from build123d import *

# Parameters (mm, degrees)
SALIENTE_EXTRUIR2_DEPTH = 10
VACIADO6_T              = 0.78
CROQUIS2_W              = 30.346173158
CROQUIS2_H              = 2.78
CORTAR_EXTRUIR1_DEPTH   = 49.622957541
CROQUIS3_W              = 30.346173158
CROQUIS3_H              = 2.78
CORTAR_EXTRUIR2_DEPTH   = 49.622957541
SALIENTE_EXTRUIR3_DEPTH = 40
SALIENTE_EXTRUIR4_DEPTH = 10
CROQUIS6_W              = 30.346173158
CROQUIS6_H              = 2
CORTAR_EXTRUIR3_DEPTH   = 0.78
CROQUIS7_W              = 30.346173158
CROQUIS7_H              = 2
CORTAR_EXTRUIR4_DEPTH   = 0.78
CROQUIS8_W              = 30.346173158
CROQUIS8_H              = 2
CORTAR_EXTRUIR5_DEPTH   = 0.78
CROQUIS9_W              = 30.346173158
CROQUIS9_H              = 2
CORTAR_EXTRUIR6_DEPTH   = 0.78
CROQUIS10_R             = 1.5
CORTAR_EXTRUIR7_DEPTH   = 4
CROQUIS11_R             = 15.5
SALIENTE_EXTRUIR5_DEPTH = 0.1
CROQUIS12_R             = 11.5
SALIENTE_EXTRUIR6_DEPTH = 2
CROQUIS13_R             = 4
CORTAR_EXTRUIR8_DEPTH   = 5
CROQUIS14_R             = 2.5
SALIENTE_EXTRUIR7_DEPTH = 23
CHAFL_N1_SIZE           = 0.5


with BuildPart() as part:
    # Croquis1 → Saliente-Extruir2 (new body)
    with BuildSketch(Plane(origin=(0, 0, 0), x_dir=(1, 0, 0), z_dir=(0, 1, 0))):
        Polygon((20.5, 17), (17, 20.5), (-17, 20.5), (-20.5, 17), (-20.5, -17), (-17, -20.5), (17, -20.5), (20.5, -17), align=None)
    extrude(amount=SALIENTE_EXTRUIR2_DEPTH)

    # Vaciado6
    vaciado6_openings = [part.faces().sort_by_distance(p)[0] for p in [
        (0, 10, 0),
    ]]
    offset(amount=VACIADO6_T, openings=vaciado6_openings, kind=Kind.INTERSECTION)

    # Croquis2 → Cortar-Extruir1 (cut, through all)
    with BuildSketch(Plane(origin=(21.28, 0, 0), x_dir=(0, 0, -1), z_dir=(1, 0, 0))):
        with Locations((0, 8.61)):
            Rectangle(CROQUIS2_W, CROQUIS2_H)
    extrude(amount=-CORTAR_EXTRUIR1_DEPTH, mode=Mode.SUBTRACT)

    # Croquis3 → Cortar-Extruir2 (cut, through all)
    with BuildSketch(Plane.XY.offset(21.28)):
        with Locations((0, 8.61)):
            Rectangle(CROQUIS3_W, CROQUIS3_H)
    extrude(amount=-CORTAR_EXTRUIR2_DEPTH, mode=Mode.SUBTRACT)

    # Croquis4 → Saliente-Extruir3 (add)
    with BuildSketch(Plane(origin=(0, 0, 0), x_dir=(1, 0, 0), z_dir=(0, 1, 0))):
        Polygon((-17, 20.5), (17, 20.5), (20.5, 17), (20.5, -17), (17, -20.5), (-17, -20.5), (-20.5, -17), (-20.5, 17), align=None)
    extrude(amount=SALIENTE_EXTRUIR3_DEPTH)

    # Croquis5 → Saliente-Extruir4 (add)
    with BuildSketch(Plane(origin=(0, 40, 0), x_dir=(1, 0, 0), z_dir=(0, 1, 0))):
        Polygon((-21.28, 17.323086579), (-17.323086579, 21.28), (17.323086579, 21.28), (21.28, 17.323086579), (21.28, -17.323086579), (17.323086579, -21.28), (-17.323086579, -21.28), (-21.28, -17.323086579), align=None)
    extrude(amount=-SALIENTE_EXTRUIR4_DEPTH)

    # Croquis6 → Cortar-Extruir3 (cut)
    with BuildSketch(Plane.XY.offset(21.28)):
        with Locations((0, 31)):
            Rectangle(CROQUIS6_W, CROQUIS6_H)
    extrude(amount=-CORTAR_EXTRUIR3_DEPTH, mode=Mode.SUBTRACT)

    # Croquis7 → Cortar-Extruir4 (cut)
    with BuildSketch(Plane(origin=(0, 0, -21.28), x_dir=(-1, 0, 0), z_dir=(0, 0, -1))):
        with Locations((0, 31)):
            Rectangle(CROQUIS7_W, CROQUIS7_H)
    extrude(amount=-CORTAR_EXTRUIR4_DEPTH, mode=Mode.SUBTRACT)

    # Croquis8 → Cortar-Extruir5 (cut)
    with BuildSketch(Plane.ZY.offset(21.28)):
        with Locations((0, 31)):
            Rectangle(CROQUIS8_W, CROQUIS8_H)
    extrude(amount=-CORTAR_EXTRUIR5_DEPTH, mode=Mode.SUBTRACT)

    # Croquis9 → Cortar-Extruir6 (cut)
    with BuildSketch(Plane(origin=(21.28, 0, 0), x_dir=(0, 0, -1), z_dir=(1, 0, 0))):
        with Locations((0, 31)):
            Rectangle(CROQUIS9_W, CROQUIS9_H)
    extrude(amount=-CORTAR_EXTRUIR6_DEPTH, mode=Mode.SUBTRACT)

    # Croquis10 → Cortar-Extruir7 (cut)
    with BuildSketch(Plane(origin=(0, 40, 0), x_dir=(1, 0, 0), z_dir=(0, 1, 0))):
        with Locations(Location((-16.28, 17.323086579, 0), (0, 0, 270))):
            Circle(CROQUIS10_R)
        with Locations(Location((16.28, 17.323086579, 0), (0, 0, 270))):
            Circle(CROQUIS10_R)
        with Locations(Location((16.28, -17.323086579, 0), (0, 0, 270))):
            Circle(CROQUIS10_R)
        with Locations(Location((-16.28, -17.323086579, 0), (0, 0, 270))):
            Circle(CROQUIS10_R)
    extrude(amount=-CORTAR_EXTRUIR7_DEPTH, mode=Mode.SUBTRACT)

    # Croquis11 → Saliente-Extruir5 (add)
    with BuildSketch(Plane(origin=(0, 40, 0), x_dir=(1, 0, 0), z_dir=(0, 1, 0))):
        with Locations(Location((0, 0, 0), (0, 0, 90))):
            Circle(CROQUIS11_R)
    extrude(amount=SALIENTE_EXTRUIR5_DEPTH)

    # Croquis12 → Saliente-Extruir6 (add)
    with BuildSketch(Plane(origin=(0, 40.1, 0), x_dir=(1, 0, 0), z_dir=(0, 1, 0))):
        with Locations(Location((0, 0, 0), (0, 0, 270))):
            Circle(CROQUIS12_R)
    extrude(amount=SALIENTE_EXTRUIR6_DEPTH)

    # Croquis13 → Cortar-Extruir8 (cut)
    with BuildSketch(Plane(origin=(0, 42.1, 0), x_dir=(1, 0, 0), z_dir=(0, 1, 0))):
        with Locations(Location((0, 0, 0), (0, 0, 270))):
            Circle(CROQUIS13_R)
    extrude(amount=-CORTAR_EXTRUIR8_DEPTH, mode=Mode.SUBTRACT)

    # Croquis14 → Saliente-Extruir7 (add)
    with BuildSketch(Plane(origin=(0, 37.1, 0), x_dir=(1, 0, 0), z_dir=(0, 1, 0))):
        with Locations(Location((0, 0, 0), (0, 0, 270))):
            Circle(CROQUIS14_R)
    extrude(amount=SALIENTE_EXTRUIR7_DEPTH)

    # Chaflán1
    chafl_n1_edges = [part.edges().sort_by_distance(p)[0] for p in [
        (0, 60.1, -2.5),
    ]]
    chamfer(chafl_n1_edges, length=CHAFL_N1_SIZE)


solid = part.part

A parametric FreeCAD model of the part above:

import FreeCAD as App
import Part
import Sketcher


def edges_at(feature, points):
    """Names of the edges that pass closest to the given points."""
    edges = feature.Shape.Edges
    near = lambda p: min(range(len(edges)), key=lambda i: edges[i].distToShape(Part.Vertex(*p))[0])
    return sorted({f"Edge{near(p) + 1}" for p in points})


def faces_at(feature, points):
    """Names of the faces that lie closest to the given points."""
    faces = feature.Shape.Faces
    near = lambda p: min(range(len(faces)), key=lambda i: faces[i].distToShape(Part.Vertex(*p))[0])
    return sorted({f"Face{near(p) + 1}" for p in points})

doc = App.newDocument("Part")
body = doc.addObject("PartDesign::Body", "Body")

# Sketch on XZ plane
sketch1 = body.newObject("Sketcher::SketchObject", "Sketch")
sketch1.AttachmentSupport = (doc.getObject("XZ_Plane"), [""])
sketch1.MapMode = "FlatFace"
sketch1.addGeometry([
    Part.LineSegment(App.Vector(20.5, -17, 0), App.Vector(17, -20.5, 0)),  # 0
    Part.LineSegment(App.Vector(17, -20.5, 0), App.Vector(-17, -20.5, 0)),  # 1
    Part.LineSegment(App.Vector(-17, -20.5, 0), App.Vector(-20.5, -17, 0)),  # 2
    Part.LineSegment(App.Vector(-20.5, -17, 0), App.Vector(-20.5, 17, 0)),  # 3
    Part.LineSegment(App.Vector(-20.5, 17, 0), App.Vector(-17, 20.5, 0)),  # 4
    Part.LineSegment(App.Vector(-17, 20.5, 0), App.Vector(17, 20.5, 0)),  # 5
    Part.LineSegment(App.Vector(17, 20.5, 0), App.Vector(20.5, 17, 0)),  # 6
    Part.LineSegment(App.Vector(20.5, 17, 0), App.Vector(20.5, -17, 0)),  # 7
], False)
sketch1.addConstraint([
    Sketcher.Constraint("Coincident", 0, 2, 1, 1),
    Sketcher.Constraint("Coincident", 1, 2, 2, 1),
    Sketcher.Constraint("Coincident", 2, 2, 3, 1),
    Sketcher.Constraint("Coincident", 3, 2, 4, 1),
    Sketcher.Constraint("Coincident", 4, 2, 5, 1),
    Sketcher.Constraint("Coincident", 5, 2, 6, 1),
    Sketcher.Constraint("Coincident", 6, 2, 7, 1),
    Sketcher.Constraint("Coincident", 7, 2, 0, 1),
    Sketcher.Constraint("Horizontal", 1),
    Sketcher.Constraint("Vertical", 3),
    Sketcher.Constraint("Horizontal", 5),
    Sketcher.Constraint("Vertical", 7),
    Sketcher.Constraint("Symmetric", 0, 2, 4, 2, -1, 1),
    Sketcher.Constraint("Symmetric", 2, 2, 6, 2, -1, 1),
    Sketcher.Constraint("Perpendicular", 0, 2),
    Sketcher.Constraint("Perpendicular", 2, 4),
    Sketcher.Constraint("Perpendicular", 4, 6),
    Sketcher.Constraint("Horizontal", 3, 2, 6, 2),
    Sketcher.Constraint("Vertical", 1, 2, 4, 2),
    Sketcher.Constraint("Equal", 5, 3),
    Sketcher.Constraint("DistanceX", 1, 2, 1, 1, 34.0),
    Sketcher.Constraint("DistanceY", 1, 2, 4, 2, 41.0),
])
pad1 = body.newObject("PartDesign::Pad", "Pad")
pad1.Profile = sketch1
pad1.Length = 10
pad1.Reversed = True
doc.recompute()

thickness = body.newObject("PartDesign::Thickness", "Thickness")
thickness.Base = (pad1, faces_at(pad1, [(0, 10, 0)]))
thickness.Value = 0.78
thickness.Reversed = False
thickness.Join = "Intersection"

# Sketch on YZ plane
sketch2 = body.newObject("Sketcher::SketchObject", "Sketch001")
sketch2.AttachmentSupport = (doc.getObject("YZ_Plane"), [""])
sketch2.MapMode = "FlatFace"
sketch2.AttachmentOffset = App.Placement(App.Vector(0, 0, 21.28), App.Rotation())
sketch2.addGeometry([
    Part.LineSegment(App.Vector(10, 15.2, 0), App.Vector(7.2, 15.2, 0)),
    Part.LineSegment(App.Vector(7.2, 15.2, 0), App.Vector(7.2, -15.2, 0)),
    Part.LineSegment(App.Vector(7.2, -15.2, 0), App.Vector(10, -15.2, 0)),
    Part.LineSegment(App.Vector(10, -15.2, 0), App.Vector(10, 15.2, 0)),
], False)
sketch2.addConstraint([
    Sketcher.Constraint("Coincident", 0, 2, 1, 1),
    Sketcher.Constraint("Coincident", 1, 2, 2, 1),
    Sketcher.Constraint("Coincident", 2, 2, 3, 1),
    Sketcher.Constraint("Coincident", 3, 2, 0, 1),
    Sketcher.Constraint("Horizontal", 0),
    Sketcher.Constraint("Vertical", 1),
    Sketcher.Constraint("Horizontal", 2),
    Sketcher.Constraint("Vertical", 3),
    Sketcher.Constraint("DistanceX", -1, 1, 2, 2, 10.0),
    Sketcher.Constraint("DistanceX", 0, 2, 0, 1, 2.78),
    Sketcher.Constraint("DistanceY", 1, 2, 1, 1, 30.346173),
    Sketcher.Constraint("DistanceY", -1, 1, 0, 2, 15.173087),
])
pocket1 = body.newObject("PartDesign::Pocket", "Pocket")
pocket1.Profile = sketch2
pocket1.Type = "ThroughAll"

# Sketch on XY plane
sketch3 = body.newObject("Sketcher::SketchObject", "Sketch002")
sketch3.AttachmentSupport = (doc.getObject("XY_Plane"), [""])
sketch3.MapMode = "FlatFace"
sketch3.AttachmentOffset = App.Placement(App.Vector(0, 0, 21.28), App.Rotation())
sketch3.addGeometry([
    Part.LineSegment(App.Vector(-15.2, 10, 0), App.Vector(-15.2, 7.2, 0)),
    Part.LineSegment(App.Vector(-15.2, 7.2, 0), App.Vector(15.2, 7.2, 0)),
    Part.LineSegment(App.Vector(15.2, 7.2, 0), App.Vector(15.2, 10, 0)),
    Part.LineSegment(App.Vector(15.2, 10, 0), App.Vector(-15.2, 10, 0)),
], False)
sketch3.addConstraint([
    Sketcher.Constraint("Coincident", 0, 2, 1, 1),
    Sketcher.Constraint("Coincident", 1, 2, 2, 1),
    Sketcher.Constraint("Coincident", 2, 2, 3, 1),
    Sketcher.Constraint("Coincident", 3, 2, 0, 1),
    Sketcher.Constraint("Vertical", 0),
    Sketcher.Constraint("Horizontal", 1),
    Sketcher.Constraint("Vertical", 2),
    Sketcher.Constraint("Horizontal", 3),
    Sketcher.Constraint("DistanceY", -1, 1, 2, 2, 10.0),
    Sketcher.Constraint("DistanceY", 0, 2, 0, 1, 2.78),
    Sketcher.Constraint("DistanceX", 1, 1, 1, 2, 30.346173),
    Sketcher.Constraint("DistanceX", 0, 2, -1, 1, 15.173087),
])
pocket2 = body.newObject("PartDesign::Pocket", "Pocket001")
pocket2.Profile = sketch3
pocket2.Type = "ThroughAll"

# Sketch on XZ plane
sketch4 = body.newObject("Sketcher::SketchObject", "Sketch003")
sketch4.AttachmentSupport = (doc.getObject("XZ_Plane"), [""])
sketch4.MapMode = "FlatFace"
sketch4.addGeometry([
    Part.LineSegment(App.Vector(17, -20.5, 0), App.Vector(-17, -20.5, 0)),  # 0
    Part.LineSegment(App.Vector(-17, -20.5, 0), App.Vector(-20.5, -17, 0)),  # 1
    Part.LineSegment(App.Vector(-20.5, -17, 0), App.Vector(-20.5, 17, 0)),  # 2
    Part.LineSegment(App.Vector(-20.5, 17, 0), App.Vector(-17, 20.5, 0)),  # 3
    Part.LineSegment(App.Vector(-17, 20.5, 0), App.Vector(17, 20.5, 0)),  # 4
    Part.LineSegment(App.Vector(17, 20.5, 0), App.Vector(20.5, 17, 0)),  # 5
    Part.LineSegment(App.Vector(20.5, 17, 0), App.Vector(20.5, -17, 0)),  # 6
    Part.LineSegment(App.Vector(20.5, -17, 0), App.Vector(17, -20.5, 0)),  # 7
], False)
sketch4.addConstraint([
    Sketcher.Constraint("Coincident", 0, 2, 1, 1),
    Sketcher.Constraint("Coincident", 1, 2, 2, 1),
    Sketcher.Constraint("Coincident", 2, 2, 3, 1),
    Sketcher.Constraint("Coincident", 3, 2, 4, 1),
    Sketcher.Constraint("Coincident", 4, 2, 5, 1),
    Sketcher.Constraint("Coincident", 5, 2, 6, 1),
    Sketcher.Constraint("Coincident", 6, 2, 7, 1),
    Sketcher.Constraint("Coincident", 7, 2, 0, 1),
    Sketcher.Constraint("Horizontal", 0),
    Sketcher.Constraint("Vertical", 2),
    Sketcher.Constraint("Horizontal", 4),
    Sketcher.Constraint("Vertical", 6),
    Sketcher.Constraint("Symmetric", 0, 2, 4, 2, -1, 1),
    Sketcher.Constraint("Symmetric", 1, 2, 5, 2, -1, 1),
    Sketcher.Constraint("Perpendicular", 1, 3),
    Sketcher.Constraint("Perpendicular", 5, 7),
    Sketcher.Constraint("Horizontal", 2, 2, 5, 2),
    Sketcher.Constraint("Horizontal", 1, 2, 6, 2),
    Sketcher.Constraint("Vertical", 0, 2, 3, 2),
    Sketcher.Constraint("Equal", 4, 2),
    Sketcher.Constraint("DistanceX", 0, 2, 0, 1, 34.0),
    Sketcher.Constraint("DistanceY", 0, 2, 3, 2, 41.0),
])
pad2 = body.newObject("PartDesign::Pad", "Pad001")
pad2.Profile = sketch4
pad2.Length = 40
pad2.Reversed = True

# Sketch on XZ plane
sketch5 = body.newObject("Sketcher::SketchObject", "Sketch004")
sketch5.AttachmentSupport = (doc.getObject("XZ_Plane"), [""])
sketch5.MapMode = "FlatFace"
sketch5.AttachmentOffset = App.Placement(App.Vector(0, 0, -40), App.Rotation())
sketch5.addGeometry([
    Part.LineSegment(App.Vector(-17, -21, 0), App.Vector(-21, -17, 0)),  # 0
    Part.LineSegment(App.Vector(-21, -17, 0), App.Vector(-21, 17, 0)),  # 1
    Part.LineSegment(App.Vector(-21, 17, 0), App.Vector(-17, 21, 0)),  # 2
    Part.LineSegment(App.Vector(-17, 21, 0), App.Vector(17, 21, 0)),  # 3
    Part.LineSegment(App.Vector(17, 21, 0), App.Vector(21, 17, 0)),  # 4
    Part.LineSegment(App.Vector(21, 17, 0), App.Vector(21, -17, 0)),  # 5
    Part.LineSegment(App.Vector(21, -17, 0), App.Vector(17, -21, 0)),  # 6
    Part.LineSegment(App.Vector(17, -21, 0), App.Vector(-17, -21, 0)),  # 7
], False)
sketch5.addConstraint([
    Sketcher.Constraint("Coincident", 0, 2, 1, 1),
    Sketcher.Constraint("Coincident", 1, 2, 2, 1),
    Sketcher.Constraint("Coincident", 2, 2, 3, 1),
    Sketcher.Constraint("Coincident", 3, 2, 4, 1),
    Sketcher.Constraint("Coincident", 4, 2, 5, 1),
    Sketcher.Constraint("Coincident", 5, 2, 6, 1),
    Sketcher.Constraint("Coincident", 6, 2, 7, 1),
    Sketcher.Constraint("Coincident", 7, 2, 0, 1),
    Sketcher.Constraint("Vertical", 1),
    Sketcher.Constraint("Horizontal", 3),
    Sketcher.Constraint("Vertical", 5),
    Sketcher.Constraint("Horizontal", 7),
    Sketcher.Constraint("Symmetric", 0, 2, 4, 2, -1, 1),
    Sketcher.Constraint("Symmetric", 2, 2, 6, 2, -1, 1),
    Sketcher.Constraint("Perpendicular", 0, 2),
    Sketcher.Constraint("Perpendicular", 2, 4),
    Sketcher.Constraint("Perpendicular", 4, 6),
    Sketcher.Constraint("Horizontal", 1, 2, 4, 2),
    Sketcher.Constraint("Vertical", 3, 2, 6, 2),
    Sketcher.Constraint("Equal", 7, 1),
    Sketcher.Constraint("DistanceX", 0, 2, -1, 1, 21.28),
    Sketcher.Constraint("Distance", 0, 5.595921),
])
pad3 = body.newObject("PartDesign::Pad", "Pad002")
pad3.Profile = sketch5
pad3.Length = 10

# Sketch on XY plane
sketch6 = body.newObject("Sketcher::SketchObject", "Sketch005")
sketch6.AttachmentSupport = (doc.getObject("XY_Plane"), [""])
sketch6.MapMode = "FlatFace"
sketch6.AttachmentOffset = App.Placement(App.Vector(0, 0, 21.28), App.Rotation())
sketch6.addGeometry([
    Part.LineSegment(App.Vector(-15.2, 32, 0), App.Vector(-15.2, 30, 0)),
    Part.LineSegment(App.Vector(-15.2, 30, 0), App.Vector(15.2, 30, 0)),
    Part.LineSegment(App.Vector(15.2, 30, 0), App.Vector(15.2, 32, 0)),
    Part.LineSegment(App.Vector(15.2, 32, 0), App.Vector(-15.2, 32, 0)),
], False)
sketch6.addConstraint([
    Sketcher.Constraint("Coincident", 0, 2, 1, 1),
    Sketcher.Constraint("Coincident", 1, 2, 2, 1),
    Sketcher.Constraint("Coincident", 2, 2, 3, 1),
    Sketcher.Constraint("Coincident", 3, 2, 0, 1),
    Sketcher.Constraint("Vertical", 0),
    Sketcher.Constraint("Horizontal", 1),
    Sketcher.Constraint("Vertical", 2),
    Sketcher.Constraint("Horizontal", 3),
    Sketcher.Constraint("DistanceY", 0, 2, 0, 1, 2.0),
    Sketcher.Constraint("DistanceY", -1, 1, 0, 2, 30.0),
    Sketcher.Constraint("DistanceX", 1, 1, 1, 2, 30.346173),
    Sketcher.Constraint("DistanceX", 0, 2, -1, 1, 15.173087),
])
pocket3 = body.newObject("PartDesign::Pocket", "Pocket002")
pocket3.Profile = sketch6
pocket3.Length = 0.78

# Sketch on XY plane
sketch7 = body.newObject("Sketcher::SketchObject", "Sketch006")
sketch7.AttachmentSupport = (doc.getObject("XY_Plane"), [""])
sketch7.MapMode = "FlatFace"
sketch7.AttachmentOffset = App.Placement(App.Vector(0, 0, -21.28), App.Rotation())
sketch7.addGeometry([
    Part.LineSegment(App.Vector(15.2, 32, 0), App.Vector(15.2, 30, 0)),
    Part.LineSegment(App.Vector(15.2, 30, 0), App.Vector(-15.2, 30, 0)),
    Part.LineSegment(App.Vector(-15.2, 30, 0), App.Vector(-15.2, 32, 0)),
    Part.LineSegment(App.Vector(-15.2, 32, 0), App.Vector(15.2, 32, 0)),
], False)
sketch7.addConstraint([
    Sketcher.Constraint("Coincident", 0, 2, 1, 1),
    Sketcher.Constraint("Coincident", 1, 2, 2, 1),
    Sketcher.Constraint("Coincident", 2, 2, 3, 1),
    Sketcher.Constraint("Coincident", 3, 2, 0, 1),
    Sketcher.Constraint("Vertical", 0),
    Sketcher.Constraint("Horizontal", 1),
    Sketcher.Constraint("Vertical", 2),
    Sketcher.Constraint("Horizontal", 3),
    Sketcher.Constraint("DistanceY", 0, 2, 0, 1, 2.0),
    Sketcher.Constraint("DistanceY", -1, 1, 0, 2, 30.0),
    Sketcher.Constraint("DistanceX", 1, 2, 1, 1, 30.346173),
    Sketcher.Constraint("DistanceX", -1, 1, 0, 2, 15.173087),
])
pocket4 = body.newObject("PartDesign::Pocket", "Pocket003")
pocket4.Profile = sketch7
pocket4.Length = 0.78
pocket4.Reversed = True

# Sketch on YZ plane
sketch8 = body.newObject("Sketcher::SketchObject", "Sketch007")
sketch8.AttachmentSupport = (doc.getObject("YZ_Plane"), [""])
sketch8.MapMode = "FlatFace"
sketch8.AttachmentOffset = App.Placement(App.Vector(0, 0, -21.28), App.Rotation())
sketch8.addGeometry([
    Part.LineSegment(App.Vector(32, -15.2, 0), App.Vector(30, -15.2, 0)),
    Part.LineSegment(App.Vector(30, -15.2, 0), App.Vector(30, 15.2, 0)),
    Part.LineSegment(App.Vector(30, 15.2, 0), App.Vector(32, 15.2, 0)),
    Part.LineSegment(App.Vector(32, 15.2, 0), App.Vector(32, -15.2, 0)),
], False)
sketch8.addConstraint([
    Sketcher.Constraint("Coincident", 0, 2, 1, 1),
    Sketcher.Constraint("Coincident", 1, 2, 2, 1),
    Sketcher.Constraint("Coincident", 2, 2, 3, 1),
    Sketcher.Constraint("Coincident", 3, 2, 0, 1),
    Sketcher.Constraint("Horizontal", 0),
    Sketcher.Constraint("Vertical", 1),
    Sketcher.Constraint("Horizontal", 2),
    Sketcher.Constraint("Vertical", 3),
    Sketcher.Constraint("DistanceX", 0, 2, 0, 1, 2.0),
    Sketcher.Constraint("DistanceX", -1, 1, 0, 2, 30.0),
    Sketcher.Constraint("DistanceY", 1, 1, 1, 2, 30.346173),
    Sketcher.Constraint("DistanceY", 0, 2, -1, 1, 15.173087),
])
pocket5 = body.newObject("PartDesign::Pocket", "Pocket004")
pocket5.Profile = sketch8
pocket5.Length = 0.78
pocket5.Reversed = True

# Sketch on YZ plane
sketch9 = body.newObject("Sketcher::SketchObject", "Sketch008")
sketch9.AttachmentSupport = (doc.getObject("YZ_Plane"), [""])
sketch9.MapMode = "FlatFace"
sketch9.AttachmentOffset = App.Placement(App.Vector(0, 0, 21.28), App.Rotation())
sketch9.addGeometry([
    Part.LineSegment(App.Vector(32, 15.2, 0), App.Vector(30, 15.2, 0)),
    Part.LineSegment(App.Vector(30, 15.2, 0), App.Vector(30, -15.2, 0)),
    Part.LineSegment(App.Vector(30, -15.2, 0), App.Vector(32, -15.2, 0)),
    Part.LineSegment(App.Vector(32, -15.2, 0), App.Vector(32, 15.2, 0)),
], False)
sketch9.addConstraint([
    Sketcher.Constraint("Coincident", 0, 2, 1, 1),
    Sketcher.Constraint("Coincident", 1, 2, 2, 1),
    Sketcher.Constraint("Coincident", 2, 2, 3, 1),
    Sketcher.Constraint("Coincident", 3, 2, 0, 1),
    Sketcher.Constraint("Horizontal", 0),
    Sketcher.Constraint("Vertical", 1),
    Sketcher.Constraint("Horizontal", 2),
    Sketcher.Constraint("Vertical", 3),
    Sketcher.Constraint("DistanceX", 0, 2, 0, 1, 2.0),
    Sketcher.Constraint("DistanceX", -1, 1, 0, 2, 30.0),
    Sketcher.Constraint("DistanceY", 1, 2, 1, 1, 30.346173),
    Sketcher.Constraint("DistanceY", -1, 1, 0, 2, 15.173087),
])
pocket6 = body.newObject("PartDesign::Pocket", "Pocket005")
pocket6.Profile = sketch9
pocket6.Length = 0.78

# Sketch on XZ plane
sketch10 = body.newObject("Sketcher::SketchObject", "Sketch009")
sketch10.AttachmentSupport = (doc.getObject("XZ_Plane"), [""])
sketch10.MapMode = "FlatFace"
sketch10.AttachmentOffset = App.Placement(App.Vector(0, 0, -40), App.Rotation())
sketch10.addGeometry([
    Part.Circle(App.Vector(-16.3, -17.3, 0), App.Vector(0, 0, 1), 1.5),
    Part.Circle(App.Vector(16.3, -17.3, 0), App.Vector(0, 0, 1), 1.5),
    Part.Circle(App.Vector(16.3, 17.3, 0), App.Vector(0, 0, 1), 1.5),
    Part.Circle(App.Vector(-16.3, 17.3, 0), App.Vector(0, 0, 1), 1.5),
], False)
sketch10.addConstraint([
    Sketcher.Constraint("Equal", 0, 1),
    Sketcher.Constraint("Equal", 1, 2),
    Sketcher.Constraint("Equal", 2, 3),
    Sketcher.Constraint("Symmetric", 0, 3, 2, 3, -1, 1),
    Sketcher.Constraint("Symmetric", 1, 3, 3, 3, -1, 1),
    Sketcher.Constraint("Symmetric", 0, 3, 1, 3, -2),
    Sketcher.Constraint("Diameter", 0, 3.0),
    Sketcher.Constraint("DistanceX", 0, 3, -1, 1, 16.28),
    Sketcher.Constraint("DistanceY", 0, 3, -1, 1, 17.323087),
])
pocket7 = body.newObject("PartDesign::Pocket", "Pocket006")
pocket7.Profile = sketch10
pocket7.Length = 4
pocket7.Reversed = True

# Sketch on XZ plane
sketch11 = body.newObject("Sketcher::SketchObject", "Sketch010")
sketch11.AttachmentSupport = (doc.getObject("XZ_Plane"), [""])
sketch11.MapMode = "FlatFace"
sketch11.AttachmentOffset = App.Placement(App.Vector(0, 0, -40), App.Rotation())
sketch11.addGeometry(Part.Circle(App.Vector(0, 0, 0), App.Vector(0, 0, 1), 16), False)
sketch11.addConstraint([
    Sketcher.Constraint("Coincident", 0, 3, -1, 1),
    Sketcher.Constraint("Diameter", 0, 31.0),
])
pad4 = body.newObject("PartDesign::Pad", "Pad003")
pad4.Profile = sketch11
pad4.Length = 0.1
pad4.Reversed = True

# Sketch on XZ plane
sketch12 = body.newObject("Sketcher::SketchObject", "Sketch011")
sketch12.AttachmentSupport = (doc.getObject("XZ_Plane"), [""])
sketch12.MapMode = "FlatFace"
sketch12.AttachmentOffset = App.Placement(App.Vector(0, 0, -40.1), App.Rotation())
sketch12.addGeometry(Part.Circle(App.Vector(0, 0, 0), App.Vector(0, 0, 1), 12), False)
sketch12.addConstraint([
    Sketcher.Constraint("Coincident", 0, 3, -1, 1),
    Sketcher.Constraint("Diameter", 0, 23.0),
])
pad5 = body.newObject("PartDesign::Pad", "Pad004")
pad5.Profile = sketch12
pad5.Length = 2
pad5.Reversed = True

# Sketch on XZ plane
sketch13 = body.newObject("Sketcher::SketchObject", "Sketch012")
sketch13.AttachmentSupport = (doc.getObject("XZ_Plane"), [""])
sketch13.MapMode = "FlatFace"
sketch13.AttachmentOffset = App.Placement(App.Vector(0, 0, -42.1), App.Rotation())
sketch13.addGeometry(Part.Circle(App.Vector(0, 0, 0), App.Vector(0, 0, 1), 4), False)
sketch13.addConstraint([
    Sketcher.Constraint("Coincident", 0, 3, -1, 1),
    Sketcher.Constraint("Diameter", 0, 8.0),
])
pocket8 = body.newObject("PartDesign::Pocket", "Pocket007")
pocket8.Profile = sketch13
pocket8.Length = 5
pocket8.Reversed = True

# Sketch on XZ plane
sketch14 = body.newObject("Sketcher::SketchObject", "Sketch013")
sketch14.AttachmentSupport = (doc.getObject("XZ_Plane"), [""])
sketch14.MapMode = "FlatFace"
sketch14.AttachmentOffset = App.Placement(App.Vector(0, 0, -37.1), App.Rotation())
sketch14.addGeometry(Part.Circle(App.Vector(0, 0, 0), App.Vector(0, 0, 1), 2.5), False)
sketch14.addConstraint([
    Sketcher.Constraint("Coincident", 0, 3, -1, 1),
    Sketcher.Constraint("Diameter", 0, 5.0),
])
pad6 = body.newObject("PartDesign::Pad", "Pad005")
pad6.Profile = sketch14
pad6.Length = 23
pad6.Reversed = True
doc.recompute()

chamfer = body.newObject("PartDesign::Chamfer", "Chamfer")
chamfer.Base = (pad6, edges_at(pad6, [(0, 60.1, -2.5)]))
chamfer.Size = 0.5

doc.recompute()
